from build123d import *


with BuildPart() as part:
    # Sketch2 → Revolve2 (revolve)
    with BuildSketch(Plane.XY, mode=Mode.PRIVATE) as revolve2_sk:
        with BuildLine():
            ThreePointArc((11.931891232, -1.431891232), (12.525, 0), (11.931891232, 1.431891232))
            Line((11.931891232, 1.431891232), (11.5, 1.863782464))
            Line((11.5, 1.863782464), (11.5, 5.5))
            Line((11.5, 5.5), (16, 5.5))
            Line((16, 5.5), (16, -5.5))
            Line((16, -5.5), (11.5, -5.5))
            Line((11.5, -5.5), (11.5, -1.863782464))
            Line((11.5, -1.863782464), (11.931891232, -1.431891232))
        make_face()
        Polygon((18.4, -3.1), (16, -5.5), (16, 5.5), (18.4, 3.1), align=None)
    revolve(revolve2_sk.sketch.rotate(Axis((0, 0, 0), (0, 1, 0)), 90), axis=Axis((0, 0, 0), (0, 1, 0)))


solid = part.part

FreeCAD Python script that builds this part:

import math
import FreeCAD as App
import Part
import Sketcher

V = App.Vector

doc = App.newDocument("Part")
body = doc.addObject("PartDesign::Body", "Body")

sketch1 = doc.addObject("Sketcher::SketchObject", "Sketch")
body.addObject(sketch1)
sketch1.AttachmentSupport = (doc.XY_Plane, [""])
sketch1.MapMode = "FlatFace"
sketch1.addGeometry(Part.ArcOfCircle(Part.Circle(V(10.5, 0, 0), V(0, 0, 1), 2), math.radians(-45), math.radians(45)), False)
sketch1.addGeometry(Part.LineSegment(V(11.9, -1.4, 0), V(11.5, -1.9, 0)), False)
sketch1.addGeometry(Part.LineSegment(V(11.5, -1.9, 0), V(11.5, -5.5, 0)), False)
sketch1.addGeometry(Part.LineSegment(V(11.5, -5.5, 0), V(16, -5.5, 0)), False)
sketch1.addGeometry(Part.LineSegment(V(16, -5.5, 0), V(18.4, -3.1, 0)), False)
sketch1.addGeometry(Part.LineSegment(V(18.4, -3.1, 0), V(18.4, 3.1, 0)), False)
sketch1.addGeometry(Part.LineSegment(V(18.4, 3.1, 0), V(16, 5.5, 0)), False)
sketch1.addGeometry(Part.LineSegment(V(16, 5.5, 0), V(11.5, 5.5, 0)), False)
sketch1.addGeometry(Part.LineSegment(V(11.5, 5.5, 0), V(11.5, 1.9, 0)), False)
sketch1.addGeometry(Part.LineSegment(V(11.5, 1.9, 0), V(11.9, 1.4, 0)), False)
sketch1.addConstraint(Sketcher.Constraint("Tangent", 0, 1, 1, 1))
sketch1.addConstraint(Sketcher.Constraint("Coincident", 1, 2, 2, 1))
sketch1.addConstraint(Sketcher.Constraint("Coincident", 2, 2, 3, 1))
sketch1.addConstraint(Sketcher.Constraint("Coincident", 3, 2, 4, 1))
sketch1.addConstraint(Sketcher.Constraint("Coincident", 4, 2, 5, 1))
sketch1.addConstraint(Sketcher.Constraint("Coincident", 5, 2, 6, 1))
sketch1.addConstraint(Sketcher.Constraint("Coincident", 6, 2, 7, 1))
sketch1.addConstraint(Sketcher.Constraint("Coincident", 7, 2, 8, 1))
sketch1.addConstraint(Sketcher.Constraint("Coincident", 8, 2, 9, 1))
sketch1.addConstraint(Sketcher.Constraint("Tangent", 9, 2, 0, 2))
sketch1.addConstraint(Sketcher.Constraint("Vertical", 2))
sketch1.addConstraint(Sketcher.Constraint("Horizontal", 3))
sketch1.addConstraint(Sketcher.Constraint("Vertical", 5))
sketch1.addConstraint(Sketcher.Constraint("Horizontal", 7))
sketch1.addConstraint(Sketcher.Constraint("Vertical", 8))
sketch1.addConstraint(Sketcher.Constraint("Symmetric", 3, 2, 6, 2, -1))
sketch1.addConstraint(Sketcher.Constraint("Symmetric", 1, 2, 8, 2, -1))
sketch1.addConstraint(Sketcher.Constraint("PointOnObject", 0, 3, -1))
sketch1.addConstraint(Sketcher.Constraint("Parallel", 1, 4))
sketch1.addConstraint(Sketcher.Constraint("Perpendicular", 4, 6))
sketch1.addConstraint(Sketcher.Constraint("Parallel", 6, 9))
sketch1.addConstraint(Sketcher.Constraint("DistanceX", 3, 1, 3, 2, 4.5))
sketch1.addConstraint(Sketcher.Constraint("DistanceY", 5, 1, 5, 2, 6.2))
sketch1.addConstraint(Sketcher.Constraint("DistanceX", -1, 1, 3, 2, 16.0))
sketch1.addConstraint(Sketcher.Constraint("Radius", 0, 2.025))
sketch1.addConstraint(Sketcher.Constraint("DistanceX", 0, 3, 1, 2, 1.0))
sketch1.addConstraint(Sketcher.Constraint("DistanceY", 2, 2, -1, 1, 5.5))
revolution = doc.addObject("PartDesign::Revolution", "Revolution")
body.addObject(revolution)
revolution.Profile = sketch1
revolution.ReferenceAxis = (sketch1, ["V_Axis"])
revolution.Angle = 360

doc.recompute()
